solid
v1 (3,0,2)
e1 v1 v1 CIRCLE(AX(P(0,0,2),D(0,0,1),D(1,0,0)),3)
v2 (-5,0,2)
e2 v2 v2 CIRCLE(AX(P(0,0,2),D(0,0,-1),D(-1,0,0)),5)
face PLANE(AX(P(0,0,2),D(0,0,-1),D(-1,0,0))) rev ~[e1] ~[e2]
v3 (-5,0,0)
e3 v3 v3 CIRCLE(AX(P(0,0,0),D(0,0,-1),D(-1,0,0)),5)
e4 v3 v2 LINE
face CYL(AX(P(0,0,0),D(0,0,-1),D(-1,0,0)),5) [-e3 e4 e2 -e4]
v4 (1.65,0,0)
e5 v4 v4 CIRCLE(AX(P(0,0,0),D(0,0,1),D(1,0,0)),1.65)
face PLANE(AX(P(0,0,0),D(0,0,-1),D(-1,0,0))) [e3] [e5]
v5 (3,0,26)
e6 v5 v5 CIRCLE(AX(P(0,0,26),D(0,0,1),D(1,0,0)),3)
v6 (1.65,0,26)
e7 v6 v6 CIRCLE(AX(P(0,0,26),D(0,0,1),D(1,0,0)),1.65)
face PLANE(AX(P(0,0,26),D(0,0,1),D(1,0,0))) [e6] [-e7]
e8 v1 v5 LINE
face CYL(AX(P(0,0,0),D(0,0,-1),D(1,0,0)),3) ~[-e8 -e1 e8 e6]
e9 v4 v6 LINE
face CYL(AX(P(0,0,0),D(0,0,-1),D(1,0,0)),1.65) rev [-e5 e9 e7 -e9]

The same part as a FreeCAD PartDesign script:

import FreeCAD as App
import Part
import Sketcher

doc = App.newDocument("Part")
params = doc.addObject("Spreadsheet::Sheet", "Params")
for row, (alias, value) in enumerate([
    ("sketch1_diameter", "6 mm"),
    ("sketch1_diameter2", "3.3 mm"),
    ("pad1_length", "26 mm"),
    ("sketch2_diameter", "10 mm"),
    ("sketch2_diameter2", "6 mm"),
    ("pad2_length", "2 mm"),
], start=1):
    params.set(f"A{row}", alias)
    params.set(f"B{row}", "=" + value)
    params.setAlias(f"B{row}", alias)

body = doc.addObject("PartDesign::Body", "Body")

# Sketch on XY plane
sketch1 = body.newObject("Sketcher::SketchObject", "Sketch")
sketch1.AttachmentSupport = (doc.getObject("XY_Plane"), [""])
sketch1.MapMode = "FlatFace"
sketch1.addGeometry([
    Part.Circle(App.Vector(0, 0, 0), App.Vector(0, 0, 1), 3),
    Part.Circle(App.Vector(0, 0, 0), App.Vector(0, 0, 1), 1.6),
], False)
sketch1.addConstraint([
    Sketcher.Constraint("Coincident", 0, 3, -1, 1),
    Sketcher.Constraint("Coincident", 1, 3, -1, 1),
    Sketcher.Constraint("Diameter", 0, 6.0),
    Sketcher.Constraint("Diameter", 1, 3.3),
])
sketch1.setExpression("Constraints[2]", "Params.sketch1_diameter")
sketch1.setExpression("Constraints[3]", "Params.sketch1_diameter2")
pad1 = body.newObject("PartDesign::Pad", "Pad")
pad1.Profile = sketch1
pad1.setExpression("Length", "Params.pad1_length")

# Sketch on XY plane
sketch2 = body.newObject("Sketcher::SketchObject", "Sketch001")
sketch2.AttachmentSupport = (doc.getObject("XY_Plane"), [""])
sketch2.MapMode = "FlatFace"
sketch2.addGeometry([
    Part.Circle(App.Vector(0, 0, 0), App.Vector(0, 0, 1), 5),
    Part.Circle(App.Vector(0, 0, 0), App.Vector(0, 0, 1), 3),
], False)
sketch2.addConstraint([
    Sketcher.Constraint("Coincident", 0, 3, -1, 1),
    Sketcher.Constraint("Coincident", 1, 3, -1, 1),
    Sketcher.Constraint("Diameter", 0, 10.0),
    Sketcher.Constraint("Diameter", 1, 6.0),
])
sketch2.setExpression("Constraints[2]", "Params.sketch2_diameter")
sketch2.setExpression("Constraints[3]", "Params.sketch2_diameter2")
pad2 = body.newObject("PartDesign::Pad", "Pad001")
pad2.Profile = sketch2
pad2.setExpression("Length", "Params.pad2_length")

doc.recompute()
